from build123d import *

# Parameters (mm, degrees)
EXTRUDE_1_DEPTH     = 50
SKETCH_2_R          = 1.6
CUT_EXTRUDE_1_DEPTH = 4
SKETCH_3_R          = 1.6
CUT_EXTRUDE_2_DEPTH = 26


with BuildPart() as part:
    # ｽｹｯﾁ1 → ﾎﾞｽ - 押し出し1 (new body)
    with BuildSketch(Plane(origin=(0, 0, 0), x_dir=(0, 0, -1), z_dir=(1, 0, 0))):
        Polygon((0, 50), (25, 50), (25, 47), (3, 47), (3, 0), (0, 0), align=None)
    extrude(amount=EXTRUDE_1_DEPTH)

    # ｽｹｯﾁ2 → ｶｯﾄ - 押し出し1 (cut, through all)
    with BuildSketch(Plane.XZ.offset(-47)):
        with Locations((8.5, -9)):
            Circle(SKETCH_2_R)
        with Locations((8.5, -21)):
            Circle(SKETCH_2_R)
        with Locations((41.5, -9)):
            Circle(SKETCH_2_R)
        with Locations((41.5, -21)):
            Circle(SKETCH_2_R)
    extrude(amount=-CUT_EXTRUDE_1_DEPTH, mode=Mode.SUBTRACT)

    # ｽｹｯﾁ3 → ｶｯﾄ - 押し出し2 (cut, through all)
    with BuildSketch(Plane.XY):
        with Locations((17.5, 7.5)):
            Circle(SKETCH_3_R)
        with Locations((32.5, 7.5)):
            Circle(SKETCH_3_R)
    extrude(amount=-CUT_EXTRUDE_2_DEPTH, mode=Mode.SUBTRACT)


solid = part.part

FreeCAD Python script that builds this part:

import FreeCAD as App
import Part
import Sketcher
Q = App.Units.Quantity

doc = App.newDocument("Part")
body = doc.addObject("PartDesign::Body", "Body")

# Sketch on YZ plane
sketch1 = body.newObject("Sketcher::SketchObject", "Sketch")
sketch1.AttachmentSupport = (doc.getObject("YZ_Plane"), [""])
sketch1.MapMode = "FlatFace"
sketch1.addGeometry(Part.LineSegment(App.Vector(50, -25, 0), App.Vector(50, 0, 0)), False)
sketch1.addGeometry(Part.LineSegment(App.Vector(50, 0, 0), App.Vector(0, 0, 0)), False)
sketch1.addGeometry(Part.LineSegment(App.Vector(0, 0, 0), App.Vector(0, -3, 0)), False)
sketch1.addGeometry(Part.LineSegment(App.Vector(0, -3, 0), App.Vector(47, -3, 0)), False)
sketch1.addGeometry(Part.LineSegment(App.Vector(47, -3, 0), App.Vector(47, -25, 0)), False)
sketch1.addGeometry(Part.LineSegment(App.Vector(47, -25, 0), App.Vector(50, -25, 0)), False)
sketch1.addConstraint(Sketcher.Constraint("Coincident", 0, 2, 1, 1))
sketch1.addConstraint(Sketcher.Constraint("Coincident", 1, 2, 2, 1))
sketch1.addConstraint(Sketcher.Constraint("Coincident", 2, 2, 3, 1))
sketch1.addConstraint(Sketcher.Constraint("Coincident", 3, 2, 4, 1))
sketch1.addConstraint(Sketcher.Constraint("Coincident", 4, 2, 5, 1))
sketch1.addConstraint(Sketcher.Constraint("Coincident", 5, 2, 0, 1))
sketch1.addConstraint(Sketcher.Constraint("Vertical", 0))
sketch1.addConstraint(Sketcher.Constraint("Horizontal", 1))
sketch1.addConstraint(Sketcher.Constraint("Vertical", 2))
sketch1.addConstraint(Sketcher.Constraint("Horizontal", 3))
sketch1.addConstraint(Sketcher.Constraint("Vertical", 4))
sketch1.addConstraint(Sketcher.Constraint("Horizontal", 5))
sketch1.addConstraint(Sketcher.Constraint("Coincident", 1, 2, -1, 1))
sketch1.addConstraint(Sketcher.Constraint("Equal", 5, 2))
sketch1.addConstraint(Sketcher.Constraint("DistanceX", 1, 2, 1, 1, Q("50 mm")))
sketch1.addConstraint(Sketcher.Constraint("DistanceX", 3, 1, 3, 2, Q("47 mm")))
sketch1.addConstraint(Sketcher.Constraint("DistanceY", 0, 1, 0, 2, Q("25 mm")))
pad1 = body.newObject("PartDesign::Pad", "Pad")
pad1.Profile = sketch1
pad1.Length = 50

# Sketch on XZ plane
sketch2 = body.newObject("Sketcher::SketchObject", "Sketch001")
sketch2.AttachmentSupport = (doc.getObject("XZ_Plane"), [""])
sketch2.MapMode = "FlatFace"
sketch2.AttachmentOffset = App.Placement(App.Vector(0, 0, -47), App.Rotation())
sketch2.addGeometry(Part.Circle(App.Vector(8.5, -9, 0), App.Vector(0, 0, 1), 1.6), False)
sketch2.addGeometry(Part.Circle(App.Vector(8.5, -21, 0), App.Vector(0, 0, 1), 1.6), False)
sketch2.addGeometry(Part.Circle(App.Vector(41.5, -9, 0), App.Vector(0, 0, 1), 1.6), False)
sketch2.addGeometry(Part.Circle(App.Vector(41.5, -21, 0), App.Vector(0, 0, 1), 1.6), False)
sketch2.addConstraint(Sketcher.Constraint("Equal", 0, 1))
sketch2.addConstraint(Sketcher.Constraint("Equal", 1, 2))
sketch2.addConstraint(Sketcher.Constraint("Equal", 2, 3))
sketch2.addConstraint(Sketcher.Constraint("Horizontal", 0, 3, 2, 3))
sketch2.addConstraint(Sketcher.Constraint("Horizontal", 1, 3, 3, 3))
sketch2.addConstraint(Sketcher.Constraint("Vertical", 0, 3, 1, 3))
sketch2.addConstraint(Sketcher.Constraint("Vertical", 2, 3, 3, 3))
sketch2.addConstraint(Sketcher.Constraint("Diameter", 0, Q("3.2 mm")))
sketch2.addConstraint(Sketcher.Constraint("DistanceY", 0, 3, -1, 1, Q("9 mm")))
sketch2.addConstraint(Sketcher.Constraint("DistanceY", 1, 3, -1, 1, Q("21 mm")))
sketch2.addConstraint(Sketcher.Constraint("DistanceX", 0, 3, 2, 3, Q("33 mm")))
sketch2.addConstraint(Sketcher.Constraint("DistanceX", -1, 1, 0, 3, Q("8.5 mm")))
pocket1 = body.newObject("PartDesign::Pocket", "Pocket")
pocket1.Profile = sketch2
pocket1.Type = "ThroughAll"

# Sketch on XY plane
sketch3 = body.newObject("Sketcher::SketchObject", "Sketch002")
sketch3.AttachmentSupport = (doc.getObject("XY_Plane"), [""])
sketch3.MapMode = "FlatFace"
sketch3.addGeometry(Part.Circle(App.Vector(17.5, 7.5, 0), App.Vector(0, 0, 1), 1.6), False)
sketch3.addGeometry(Part.Circle(App.Vector(32.5, 7.5, 0), App.Vector(0, 0, 1), 1.6), False)
sketch3.addConstraint(Sketcher.Constraint("Equal", 0, 1))
sketch3.addConstraint(Sketcher.Constraint("Horizontal", 0, 3, 1, 3))
sketch3.addConstraint(Sketcher.Constraint("Diameter", 0, Q("3.2 mm")))
sketch3.addConstraint(Sketcher.Constraint("DistanceX", 0, 3, 1, 3, Q("15 mm")))
sketch3.addConstraint(Sketcher.Constraint("DistanceX", -1, 1, 0, 3, Q("17.5 mm")))
sketch3.addConstraint(Sketcher.Constraint("DistanceY", -1, 1, 0, 3, Q("7.5 mm")))
pocket2 = body.newObject("PartDesign::Pocket", "Pocket001")
pocket2.Profile = sketch3
pocket2.Type = "ThroughAll"

doc.recompute()
